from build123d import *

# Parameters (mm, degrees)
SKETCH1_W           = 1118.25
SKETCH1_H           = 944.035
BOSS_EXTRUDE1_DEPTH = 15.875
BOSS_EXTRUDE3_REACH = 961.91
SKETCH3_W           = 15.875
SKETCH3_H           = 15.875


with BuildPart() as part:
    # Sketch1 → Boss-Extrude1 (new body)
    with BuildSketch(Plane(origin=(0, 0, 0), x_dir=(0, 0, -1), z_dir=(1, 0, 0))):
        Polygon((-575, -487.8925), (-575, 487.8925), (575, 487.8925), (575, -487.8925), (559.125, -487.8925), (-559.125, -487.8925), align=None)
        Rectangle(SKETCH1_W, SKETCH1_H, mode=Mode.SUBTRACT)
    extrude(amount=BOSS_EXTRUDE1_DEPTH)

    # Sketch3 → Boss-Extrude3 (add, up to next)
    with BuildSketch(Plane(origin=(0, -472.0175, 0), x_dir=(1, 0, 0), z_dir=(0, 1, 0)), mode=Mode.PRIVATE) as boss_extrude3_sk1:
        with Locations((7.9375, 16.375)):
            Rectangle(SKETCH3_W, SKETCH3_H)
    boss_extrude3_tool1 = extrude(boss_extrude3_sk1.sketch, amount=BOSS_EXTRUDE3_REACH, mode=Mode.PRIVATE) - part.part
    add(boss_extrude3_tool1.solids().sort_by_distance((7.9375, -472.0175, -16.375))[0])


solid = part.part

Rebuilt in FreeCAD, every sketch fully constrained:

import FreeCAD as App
import Part
import Sketcher

doc = App.newDocument("Part")
body = doc.addObject("PartDesign::Body", "Body")

# Sketch on YZ plane
sketch1 = body.newObject("Sketcher::SketchObject", "Sketch")
sketch1.AttachmentSupport = (doc.getObject("YZ_Plane"), [""])
sketch1.MapMode = "FlatFace"
sketch1.addGeometry([
    Part.LineSegment(App.Vector(488, 575, 0), App.Vector(-488, 575, 0)),  # 0
    Part.LineSegment(App.Vector(-488, 575, 0), App.Vector(-488, -575, 0)),  # 1
    Part.LineSegment(App.Vector(-488, -575, 0), App.Vector(488, -575, 0)),  # 2
    Part.LineSegment(App.Vector(488, -575, 0), App.Vector(488, 575, 0)),  # 3
    Part.LineSegment(App.Vector(-472, 559, 0), App.Vector(472, 559, 0)),  # 4
    Part.LineSegment(App.Vector(472, 559, 0), App.Vector(472, -559, 0)),  # 5
    Part.LineSegment(App.Vector(472, -559, 0), App.Vector(-472, -559, 0)),  # 6
    Part.LineSegment(App.Vector(-472, -559, 0), App.Vector(-472, 559, 0)),  # 7
], False)
sketch1.addConstraint([
    Sketcher.Constraint("Coincident", 0, 2, 1, 1),
    Sketcher.Constraint("Coincident", 1, 2, 2, 1),
    Sketcher.Constraint("Coincident", 2, 2, 3, 1),
    Sketcher.Constraint("Coincident", 3, 2, 0, 1),
    Sketcher.Constraint("Coincident", 4, 2, 5, 1),
    Sketcher.Constraint("Coincident", 5, 2, 6, 1),
    Sketcher.Constraint("Coincident", 6, 2, 7, 1),
    Sketcher.Constraint("Coincident", 7, 2, 4, 1),
    Sketcher.Constraint("Horizontal", 0),
    Sketcher.Constraint("Vertical", 1),
    Sketcher.Constraint("Horizontal", 2),
    Sketcher.Constraint("Vertical", 3),
    Sketcher.Constraint("Horizontal", 4),
    Sketcher.Constraint("Vertical", 5),
    Sketcher.Constraint("Horizontal", 6),
    Sketcher.Constraint("Vertical", 7),
    Sketcher.Constraint("Symmetric", 0, 2, 2, 2, -1, 1),
    Sketcher.Constraint("Symmetric", 4, 2, 6, 2, -1, 1),
    Sketcher.Constraint("DistanceY", 1, 2, 1, 1, 1150.0),
    Sketcher.Constraint("DistanceY", 5, 2, 5, 1, 1118.25),
    Sketcher.Constraint("DistanceX", 0, 2, 0, 1, 975.785),
    Sketcher.Constraint("DistanceX", 4, 1, 4, 2, 944.035),
])
pad1 = body.newObject("PartDesign::Pad", "Pad")
pad1.Profile = sketch1
pad1.Length = 15.875

# Sketch on XZ plane
sketch2 = body.newObject("Sketcher::SketchObject", "Sketch001")
sketch2.AttachmentSupport = (doc.getObject("XZ_Plane"), [""])
sketch2.MapMode = "FlatFace"
sketch2.AttachmentOffset = App.Placement(App.Vector(0, 0, 472.0175), App.Rotation())
sketch2.addGeometry([
    Part.LineSegment(App.Vector(0, -24, 0), App.Vector(0, -8, 0)),
    Part.LineSegment(App.Vector(0, -8, 0), App.Vector(16, -8, 0)),
    Part.LineSegment(App.Vector(16, -8, 0), App.Vector(16, -24, 0)),
    Part.LineSegment(App.Vector(16, -24, 0), App.Vector(0, -24, 0)),
], False)
sketch2.addConstraint([
    Sketcher.Constraint("Coincident", 0, 2, 1, 1),
    Sketcher.Constraint("Coincident", 1, 2, 2, 1),
    Sketcher.Constraint("Coincident", 2, 2, 3, 1),
    Sketcher.Constraint("Coincident", 3, 2, 0, 1),
    Sketcher.Constraint("Vertical", 0),
    Sketcher.Constraint("Horizontal", 1),
    Sketcher.Constraint("Vertical", 2),
    Sketcher.Constraint("Horizontal", 3),
    Sketcher.Constraint("PointOnObject", 0, 2, -2),
    Sketcher.Constraint("Equal", 3, 0),
    Sketcher.Constraint("DistanceX", 1, 1, 1, 2, 15.875),
    Sketcher.Constraint("DistanceY", 0, 2, -1, 1, 8.4375),
])
pad2 = body.newObject("PartDesign::Pad", "Pad001")
pad2.Profile = sketch2
pad2.Type = "UpToFirst"
pad2.Reversed = True

doc.recompute()
